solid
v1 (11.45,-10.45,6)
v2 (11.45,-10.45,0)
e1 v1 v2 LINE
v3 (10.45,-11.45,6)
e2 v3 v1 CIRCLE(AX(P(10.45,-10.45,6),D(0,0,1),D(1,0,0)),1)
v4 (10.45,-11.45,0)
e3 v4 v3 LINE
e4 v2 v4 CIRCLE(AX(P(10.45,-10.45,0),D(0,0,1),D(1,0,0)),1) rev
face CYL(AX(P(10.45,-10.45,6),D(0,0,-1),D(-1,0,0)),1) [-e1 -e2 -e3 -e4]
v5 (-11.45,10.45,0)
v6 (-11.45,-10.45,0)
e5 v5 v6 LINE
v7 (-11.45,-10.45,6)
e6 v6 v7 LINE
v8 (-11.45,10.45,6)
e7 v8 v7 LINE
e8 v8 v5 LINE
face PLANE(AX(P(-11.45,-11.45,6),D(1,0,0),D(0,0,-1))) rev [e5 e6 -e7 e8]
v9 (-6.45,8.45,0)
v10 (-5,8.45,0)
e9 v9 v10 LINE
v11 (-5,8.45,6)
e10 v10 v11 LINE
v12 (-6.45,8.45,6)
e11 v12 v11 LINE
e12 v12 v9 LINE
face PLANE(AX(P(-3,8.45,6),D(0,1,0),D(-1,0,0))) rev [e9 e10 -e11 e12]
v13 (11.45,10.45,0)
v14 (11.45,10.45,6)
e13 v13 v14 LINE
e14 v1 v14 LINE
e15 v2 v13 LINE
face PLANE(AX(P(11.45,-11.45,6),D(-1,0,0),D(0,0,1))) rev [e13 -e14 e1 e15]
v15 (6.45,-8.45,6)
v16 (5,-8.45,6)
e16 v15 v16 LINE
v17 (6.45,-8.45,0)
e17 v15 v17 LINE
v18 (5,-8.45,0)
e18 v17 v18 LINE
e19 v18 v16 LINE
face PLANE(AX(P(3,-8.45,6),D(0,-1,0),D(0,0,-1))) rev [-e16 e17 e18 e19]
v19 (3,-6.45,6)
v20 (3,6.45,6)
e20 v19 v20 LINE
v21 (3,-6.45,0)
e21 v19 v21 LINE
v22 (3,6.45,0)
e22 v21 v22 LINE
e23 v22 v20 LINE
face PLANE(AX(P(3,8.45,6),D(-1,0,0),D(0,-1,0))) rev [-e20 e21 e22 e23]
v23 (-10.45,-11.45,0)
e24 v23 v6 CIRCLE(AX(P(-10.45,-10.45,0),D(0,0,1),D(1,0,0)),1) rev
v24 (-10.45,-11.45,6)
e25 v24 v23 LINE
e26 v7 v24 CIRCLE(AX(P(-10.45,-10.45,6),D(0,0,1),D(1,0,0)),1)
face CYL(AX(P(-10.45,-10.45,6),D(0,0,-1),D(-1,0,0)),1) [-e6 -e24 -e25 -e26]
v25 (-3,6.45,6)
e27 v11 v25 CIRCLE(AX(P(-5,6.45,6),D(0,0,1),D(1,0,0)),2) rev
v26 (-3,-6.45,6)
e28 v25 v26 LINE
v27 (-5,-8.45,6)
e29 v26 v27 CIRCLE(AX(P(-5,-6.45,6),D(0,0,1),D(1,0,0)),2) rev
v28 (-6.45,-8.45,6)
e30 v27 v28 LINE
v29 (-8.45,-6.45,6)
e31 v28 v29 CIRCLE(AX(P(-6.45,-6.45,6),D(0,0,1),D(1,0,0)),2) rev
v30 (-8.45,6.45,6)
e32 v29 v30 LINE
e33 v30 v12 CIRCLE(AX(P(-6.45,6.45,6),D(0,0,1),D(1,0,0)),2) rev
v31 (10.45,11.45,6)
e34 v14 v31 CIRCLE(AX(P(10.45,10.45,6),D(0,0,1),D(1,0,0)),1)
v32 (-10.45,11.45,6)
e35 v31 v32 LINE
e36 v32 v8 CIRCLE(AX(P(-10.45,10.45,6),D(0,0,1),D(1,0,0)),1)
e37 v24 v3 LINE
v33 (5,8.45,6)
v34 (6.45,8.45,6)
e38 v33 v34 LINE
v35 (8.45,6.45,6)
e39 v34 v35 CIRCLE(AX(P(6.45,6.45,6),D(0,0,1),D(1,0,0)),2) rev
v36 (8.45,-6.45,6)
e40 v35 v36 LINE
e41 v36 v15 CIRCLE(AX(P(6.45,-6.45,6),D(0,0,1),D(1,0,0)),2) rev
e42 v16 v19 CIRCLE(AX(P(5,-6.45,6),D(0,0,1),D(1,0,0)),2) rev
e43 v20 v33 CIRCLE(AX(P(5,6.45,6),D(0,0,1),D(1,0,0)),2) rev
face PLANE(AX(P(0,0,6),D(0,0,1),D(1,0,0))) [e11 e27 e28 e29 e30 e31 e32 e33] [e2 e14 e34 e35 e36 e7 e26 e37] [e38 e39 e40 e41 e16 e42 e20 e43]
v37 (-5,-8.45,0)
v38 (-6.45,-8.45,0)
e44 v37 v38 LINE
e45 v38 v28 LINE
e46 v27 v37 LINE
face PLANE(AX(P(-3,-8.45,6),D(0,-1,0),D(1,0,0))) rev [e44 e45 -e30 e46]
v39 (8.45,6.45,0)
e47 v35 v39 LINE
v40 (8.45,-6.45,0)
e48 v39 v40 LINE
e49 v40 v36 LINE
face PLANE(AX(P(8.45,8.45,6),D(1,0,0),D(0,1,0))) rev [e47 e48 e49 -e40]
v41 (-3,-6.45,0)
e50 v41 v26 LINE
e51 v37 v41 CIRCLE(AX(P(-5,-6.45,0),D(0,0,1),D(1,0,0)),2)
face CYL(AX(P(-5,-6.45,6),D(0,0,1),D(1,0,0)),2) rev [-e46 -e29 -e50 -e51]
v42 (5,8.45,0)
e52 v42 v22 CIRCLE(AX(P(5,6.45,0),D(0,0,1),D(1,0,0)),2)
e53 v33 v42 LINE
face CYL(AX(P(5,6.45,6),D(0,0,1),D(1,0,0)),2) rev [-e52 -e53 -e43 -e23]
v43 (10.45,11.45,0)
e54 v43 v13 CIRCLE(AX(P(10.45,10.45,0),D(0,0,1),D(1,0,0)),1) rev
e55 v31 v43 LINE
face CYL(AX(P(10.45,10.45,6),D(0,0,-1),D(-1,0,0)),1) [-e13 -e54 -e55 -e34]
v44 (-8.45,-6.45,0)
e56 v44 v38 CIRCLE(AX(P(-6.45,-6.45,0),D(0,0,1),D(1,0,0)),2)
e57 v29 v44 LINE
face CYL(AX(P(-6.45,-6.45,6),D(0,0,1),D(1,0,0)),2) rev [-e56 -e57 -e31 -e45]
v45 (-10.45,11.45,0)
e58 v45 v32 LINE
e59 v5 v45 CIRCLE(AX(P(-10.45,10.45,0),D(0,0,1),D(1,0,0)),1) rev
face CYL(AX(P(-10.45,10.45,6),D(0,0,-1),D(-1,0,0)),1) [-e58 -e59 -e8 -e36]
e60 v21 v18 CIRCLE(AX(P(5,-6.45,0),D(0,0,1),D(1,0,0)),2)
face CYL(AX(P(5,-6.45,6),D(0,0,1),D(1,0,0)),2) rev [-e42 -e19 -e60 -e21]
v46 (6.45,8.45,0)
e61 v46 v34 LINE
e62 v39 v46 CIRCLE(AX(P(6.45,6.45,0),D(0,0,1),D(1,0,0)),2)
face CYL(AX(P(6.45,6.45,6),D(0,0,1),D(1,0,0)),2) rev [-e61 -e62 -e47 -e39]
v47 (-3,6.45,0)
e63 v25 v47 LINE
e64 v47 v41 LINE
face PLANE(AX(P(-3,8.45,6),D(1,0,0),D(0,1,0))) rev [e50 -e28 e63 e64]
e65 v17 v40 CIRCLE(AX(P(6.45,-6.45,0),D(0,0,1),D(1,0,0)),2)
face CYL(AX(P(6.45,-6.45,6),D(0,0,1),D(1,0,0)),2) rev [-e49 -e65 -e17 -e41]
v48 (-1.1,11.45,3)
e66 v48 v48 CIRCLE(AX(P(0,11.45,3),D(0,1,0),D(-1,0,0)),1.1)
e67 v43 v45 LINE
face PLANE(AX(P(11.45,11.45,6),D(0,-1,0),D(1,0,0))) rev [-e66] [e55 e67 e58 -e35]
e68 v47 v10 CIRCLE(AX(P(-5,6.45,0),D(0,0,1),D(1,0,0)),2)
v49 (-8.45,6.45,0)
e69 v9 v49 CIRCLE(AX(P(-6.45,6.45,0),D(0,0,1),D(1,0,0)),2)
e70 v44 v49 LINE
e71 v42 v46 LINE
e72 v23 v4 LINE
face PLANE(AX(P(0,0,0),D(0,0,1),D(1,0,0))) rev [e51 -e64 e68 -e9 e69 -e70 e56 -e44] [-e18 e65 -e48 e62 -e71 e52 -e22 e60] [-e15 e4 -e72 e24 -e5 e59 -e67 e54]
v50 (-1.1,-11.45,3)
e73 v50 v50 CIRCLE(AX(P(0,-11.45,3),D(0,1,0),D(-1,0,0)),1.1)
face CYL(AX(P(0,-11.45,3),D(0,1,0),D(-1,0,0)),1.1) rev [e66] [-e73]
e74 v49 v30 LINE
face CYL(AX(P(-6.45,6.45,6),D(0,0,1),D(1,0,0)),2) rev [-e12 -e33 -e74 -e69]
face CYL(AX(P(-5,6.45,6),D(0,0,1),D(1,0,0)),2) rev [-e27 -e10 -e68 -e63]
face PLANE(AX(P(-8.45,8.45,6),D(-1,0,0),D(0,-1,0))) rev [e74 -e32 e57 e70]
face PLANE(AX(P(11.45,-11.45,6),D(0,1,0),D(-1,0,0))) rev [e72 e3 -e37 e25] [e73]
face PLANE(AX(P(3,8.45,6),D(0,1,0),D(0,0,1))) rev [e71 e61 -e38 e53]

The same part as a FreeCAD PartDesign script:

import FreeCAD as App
import Part
import Sketcher


def edges_at(feature, points):
    """Names of the edges that pass closest to the given points."""
    edges = feature.Shape.Edges
    near = lambda p: min(range(len(edges)), key=lambda i: edges[i].distToShape(Part.Vertex(*p))[0])
    return sorted({f"Edge{near(p) + 1}" for p in points})


def add_polygon(sketch, points):
    """Adds a closed chain of lines whose ends are joined by coincident constraints."""
    first, n = sketch.GeometryCount, len(points)
    for a, b in zip(points, points[1:] + points[:1]):
        sketch.addGeometry(Part.LineSegment(App.Vector(*a, 0), App.Vector(*b, 0)), False)
    for i in range(n):
        sketch.addConstraint(Sketcher.Constraint("Coincident", first + i, 2, first + (i + 1) % n, 1))

doc = App.newDocument("Part")
body = doc.addObject("PartDesign::Body", "Body")

# Sketch on XY plane
sketch1 = body.newObject("Sketcher::SketchObject", "Sketch")
sketch1.AttachmentSupport = (doc.getObject("XY_Plane"), [""])
sketch1.MapMode = "FlatFace"
add_polygon(sketch1, [(-11.45, 11.45), (-11.45, -11.45), (11.45, -11.45), (11.45, 11.45)])  # lines 0-3
sketch1.addConstraint([
    Sketcher.Constraint("Vertical", 0),
    Sketcher.Constraint("Horizontal", 1),
    Sketcher.Constraint("Vertical", 2),
    Sketcher.Constraint("Horizontal", 3),
    Sketcher.Constraint("Symmetric", 0, 2, 2, 2, -1, 1),
    Sketcher.Constraint("Equal", 3, 0),
    Sketcher.Constraint("DistanceX", 1, 1, 1, 2, 22.9),
])
pad1 = body.newObject("PartDesign::Pad", "Pad")
pad1.Profile = sketch1
pad1.Length = 6

# Sketch on XZ plane
sketch2 = body.newObject("Sketcher::SketchObject", "Sketch001")
sketch2.AttachmentSupport = (doc.getObject("XZ_Plane"), [""])
sketch2.MapMode = "FlatFace"
sketch2.AttachmentOffset = App.Placement(App.Vector(0, 0, -11.45), App.Rotation())
sketch2.addGeometry(Part.Circle(App.Vector(0, 3, 0), App.Vector(0, 0, 1), 1.1), False)
sketch2.addConstraint([
    Sketcher.Constraint("PointOnObject", 0, 3, -2),
    Sketcher.Constraint("Diameter", 0, 2.2),
    Sketcher.Constraint("DistanceY", -1, 1, 0, 3, 3.0),
])
pocket1 = body.newObject("PartDesign::Pocket", "Pocket")
pocket1.Profile = sketch2
pocket1.Type = "ThroughAll"
pocket1.Reversed = True

# Sketch on XY plane
sketch3 = body.newObject("Sketcher::SketchObject", "Sketch002")
sketch3.AttachmentSupport = (doc.getObject("XY_Plane"), [""])
sketch3.MapMode = "FlatFace"
add_polygon(sketch3, [(-3, 8.45), (-3, -8.45), (-8.45, -8.45), (-8.45, 8.45)])  # lines 0-3
add_polygon(sketch3, [(8.45, 8.45), (8.45, -8.45), (3, -8.45), (3, 8.45)])  # lines 4-7
sketch3.addConstraint([
    Sketcher.Constraint("Vertical", 0),
    Sketcher.Constraint("Horizontal", 1),
    Sketcher.Constraint("Vertical", 2),
    Sketcher.Constraint("Horizontal", 3),
    Sketcher.Constraint("Vertical", 4),
    Sketcher.Constraint("Horizontal", 5),
    Sketcher.Constraint("Vertical", 6),
    Sketcher.Constraint("Horizontal", 7),
    Sketcher.Constraint("Symmetric", 2, 2, 4, 2, -1, 1),
    Sketcher.Constraint("Symmetric", 0, 2, 6, 2, -1, 1),
    Sketcher.Constraint("Horizontal", 1, 2, 4, 2),
    Sketcher.Constraint("DistanceY", 0, 2, 0, 1, 16.9),
    Sketcher.Constraint("DistanceX", 0, 2, -1, 1, 3.0),
    Sketcher.Constraint("DistanceX", 1, 2, 1, 1, 5.45),
])
pocket2 = body.newObject("PartDesign::Pocket", "Pocket001")
pocket2.Profile = sketch3
pocket2.Length = 6
pocket2.Reversed = True
doc.recompute()

fillet = body.newObject("PartDesign::Fillet", "Fillet")
fillet.Base = (pocket2, edges_at(pocket2, [
    (-8.45, 8.45, 3),
    (-8.45, -8.45, 3),
    (-3, -8.45, 3),
    (-3, 8.45, 3),
    (3, 8.45, 3),
    (3, -8.45, 3),
    (8.45, -8.45, 3),
    (8.45, 8.45, 3),
]))
fillet.Radius = 2
doc.recompute()

fillet2 = body.newObject("PartDesign::Fillet", "Fillet001")
fillet2.Base = (fillet, edges_at(fillet, [
    (-11.45, 11.45, 3),
    (11.45, 11.45, 3),
    (11.45, -11.45, 3),
    (-11.45, -11.45, 3),
]))
fillet2.Radius = 1

doc.recompute()
